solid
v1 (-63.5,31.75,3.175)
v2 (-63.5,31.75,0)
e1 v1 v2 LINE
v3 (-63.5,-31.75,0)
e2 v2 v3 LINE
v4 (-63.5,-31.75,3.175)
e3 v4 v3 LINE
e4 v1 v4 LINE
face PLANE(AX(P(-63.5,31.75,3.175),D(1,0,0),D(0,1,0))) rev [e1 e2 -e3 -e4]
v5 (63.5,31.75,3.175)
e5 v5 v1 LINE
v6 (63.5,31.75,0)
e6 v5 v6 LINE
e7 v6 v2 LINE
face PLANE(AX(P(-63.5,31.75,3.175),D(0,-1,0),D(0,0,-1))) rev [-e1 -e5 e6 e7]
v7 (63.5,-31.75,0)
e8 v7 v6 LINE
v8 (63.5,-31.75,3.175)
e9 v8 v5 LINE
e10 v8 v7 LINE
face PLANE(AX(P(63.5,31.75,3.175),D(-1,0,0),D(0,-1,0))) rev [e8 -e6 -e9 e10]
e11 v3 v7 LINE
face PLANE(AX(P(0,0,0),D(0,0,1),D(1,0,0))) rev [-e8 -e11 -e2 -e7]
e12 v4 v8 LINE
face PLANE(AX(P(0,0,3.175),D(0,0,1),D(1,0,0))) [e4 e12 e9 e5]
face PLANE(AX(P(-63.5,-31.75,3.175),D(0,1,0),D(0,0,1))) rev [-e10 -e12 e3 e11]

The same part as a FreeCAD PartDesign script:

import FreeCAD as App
import Part
import Sketcher
Q = App.Units.Quantity


def add_polygon(sketch, points):
    """Adds a closed chain of lines whose ends are joined by coincident constraints."""
    first, n = sketch.GeometryCount, len(points)
    for a, b in zip(points, points[1:] + points[:1]):
        sketch.addGeometry(Part.LineSegment(App.Vector(*a, 0), App.Vector(*b, 0)), False)
    for i in range(n):
        sketch.addConstraint(Sketcher.Constraint("Coincident", first + i, 2, first + (i + 1) % n, 1))

doc = App.newDocument("Part")
body = doc.addObject("PartDesign::Body", "Body")

sketch1 = body.newObject("Sketcher::SketchObject", "Sketch")
sketch1.AttachmentSupport = (doc.getObject("XY_Plane"), [""])
sketch1.MapMode = "FlatFace"
add_polygon(sketch1, [(-64, 32), (-64, -32), (64, -32), (64, 32)])
sketch1.addConstraint([
    Sketcher.Constraint("Vertical", 0),
    Sketcher.Constraint("Horizontal", 1),
    Sketcher.Constraint("Vertical", 2),
    Sketcher.Constraint("Horizontal", 3),
    Sketcher.Constraint("Symmetric", 0, 2, 2, 2, -1, 1),
    Sketcher.Constraint("DistanceX", 1, 1, 1, 2, Q("5 in")),
    Sketcher.Constraint("DistanceY", 0, 2, 0, 1, Q("2.5 in")),
])
pad1 = body.newObject("PartDesign::Pad", "Pad")
pad1.Profile = sketch1
pad1.Length = Q("0.125 in")

doc.recompute()
